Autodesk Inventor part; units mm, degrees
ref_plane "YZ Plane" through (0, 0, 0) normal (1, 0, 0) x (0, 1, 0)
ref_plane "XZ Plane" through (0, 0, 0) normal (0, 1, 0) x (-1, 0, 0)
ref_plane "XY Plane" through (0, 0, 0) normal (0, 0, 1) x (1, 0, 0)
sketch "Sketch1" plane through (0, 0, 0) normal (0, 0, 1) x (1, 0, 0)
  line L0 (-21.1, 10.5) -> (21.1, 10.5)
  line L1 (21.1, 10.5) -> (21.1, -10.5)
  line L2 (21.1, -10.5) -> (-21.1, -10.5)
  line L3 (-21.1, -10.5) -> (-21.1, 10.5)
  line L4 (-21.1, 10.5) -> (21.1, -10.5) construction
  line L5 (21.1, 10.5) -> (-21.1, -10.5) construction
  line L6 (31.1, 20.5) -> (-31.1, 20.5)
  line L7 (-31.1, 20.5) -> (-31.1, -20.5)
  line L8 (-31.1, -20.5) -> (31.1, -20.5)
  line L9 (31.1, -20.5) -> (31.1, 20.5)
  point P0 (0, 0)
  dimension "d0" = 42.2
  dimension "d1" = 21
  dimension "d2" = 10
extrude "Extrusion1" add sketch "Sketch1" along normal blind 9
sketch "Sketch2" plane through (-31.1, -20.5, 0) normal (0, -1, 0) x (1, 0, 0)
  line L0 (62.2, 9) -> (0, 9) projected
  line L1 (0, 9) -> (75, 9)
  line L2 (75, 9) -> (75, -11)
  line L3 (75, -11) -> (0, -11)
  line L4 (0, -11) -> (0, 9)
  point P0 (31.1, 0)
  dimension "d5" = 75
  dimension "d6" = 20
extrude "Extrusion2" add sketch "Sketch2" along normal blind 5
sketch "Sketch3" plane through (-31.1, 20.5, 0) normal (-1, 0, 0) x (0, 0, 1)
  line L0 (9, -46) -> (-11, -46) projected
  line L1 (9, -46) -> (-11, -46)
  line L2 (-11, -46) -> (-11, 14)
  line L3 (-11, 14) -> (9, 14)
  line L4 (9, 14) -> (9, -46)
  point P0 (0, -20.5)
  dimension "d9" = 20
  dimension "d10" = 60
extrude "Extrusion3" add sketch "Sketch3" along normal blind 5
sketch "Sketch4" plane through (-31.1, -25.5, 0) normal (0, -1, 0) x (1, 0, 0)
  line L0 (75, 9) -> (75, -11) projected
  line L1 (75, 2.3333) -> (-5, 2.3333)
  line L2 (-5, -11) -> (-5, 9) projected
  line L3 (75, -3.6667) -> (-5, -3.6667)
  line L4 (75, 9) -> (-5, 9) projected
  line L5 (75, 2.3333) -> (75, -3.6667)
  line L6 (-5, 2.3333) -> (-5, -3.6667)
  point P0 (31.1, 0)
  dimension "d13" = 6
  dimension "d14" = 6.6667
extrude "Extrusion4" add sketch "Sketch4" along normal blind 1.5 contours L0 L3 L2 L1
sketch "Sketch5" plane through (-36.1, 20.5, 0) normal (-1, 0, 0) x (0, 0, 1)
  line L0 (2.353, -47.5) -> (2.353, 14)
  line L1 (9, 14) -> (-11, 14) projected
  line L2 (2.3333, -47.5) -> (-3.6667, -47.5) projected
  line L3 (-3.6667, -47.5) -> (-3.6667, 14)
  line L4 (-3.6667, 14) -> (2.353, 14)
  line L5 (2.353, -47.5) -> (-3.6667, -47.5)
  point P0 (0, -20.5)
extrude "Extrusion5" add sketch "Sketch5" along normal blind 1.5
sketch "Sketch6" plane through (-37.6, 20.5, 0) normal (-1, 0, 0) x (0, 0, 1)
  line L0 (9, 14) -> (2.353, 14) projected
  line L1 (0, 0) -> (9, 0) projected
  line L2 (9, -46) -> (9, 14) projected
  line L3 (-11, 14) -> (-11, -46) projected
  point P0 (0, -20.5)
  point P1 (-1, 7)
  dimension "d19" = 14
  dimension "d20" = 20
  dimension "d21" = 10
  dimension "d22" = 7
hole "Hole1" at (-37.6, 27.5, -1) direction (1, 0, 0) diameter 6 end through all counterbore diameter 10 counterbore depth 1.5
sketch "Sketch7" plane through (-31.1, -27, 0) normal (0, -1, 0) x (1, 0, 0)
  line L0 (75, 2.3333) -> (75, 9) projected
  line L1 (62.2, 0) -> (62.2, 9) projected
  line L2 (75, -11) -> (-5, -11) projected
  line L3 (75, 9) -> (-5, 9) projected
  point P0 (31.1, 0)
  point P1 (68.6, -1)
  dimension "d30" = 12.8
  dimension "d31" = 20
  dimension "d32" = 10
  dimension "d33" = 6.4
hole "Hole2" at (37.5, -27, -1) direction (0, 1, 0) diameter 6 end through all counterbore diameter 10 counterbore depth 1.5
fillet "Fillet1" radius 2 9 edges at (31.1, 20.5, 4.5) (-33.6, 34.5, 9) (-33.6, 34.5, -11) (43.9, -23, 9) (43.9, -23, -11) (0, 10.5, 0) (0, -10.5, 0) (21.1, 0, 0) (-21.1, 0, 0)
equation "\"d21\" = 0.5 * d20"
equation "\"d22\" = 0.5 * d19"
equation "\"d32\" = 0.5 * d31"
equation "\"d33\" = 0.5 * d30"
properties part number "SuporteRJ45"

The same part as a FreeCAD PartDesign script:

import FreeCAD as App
import Part
import Sketcher
from FreeCAD import Vector
Q = App.Units.Quantity


def edges_at(feature, points):
    """Names of the edges that pass closest to the given points."""
    edges = feature.Shape.Edges
    near = lambda p: min(range(len(edges)), key=lambda i: edges[i].distToShape(Part.Vertex(*p))[0])
    return sorted({f"Edge{near(p) + 1}" for p in points})

doc = App.newDocument("Part")
params = doc.addObject("Spreadsheet::Sheet", "Params")
for row, (alias, value) in enumerate([
    ("sketch1_height", "21 mm"),
    ("sketch1_width", "42.2 mm"),
    ("pad1_length", "9 mm"),
    ("sketch2_width", "75 mm"),
    ("sketch2_height", "20 mm"),
    ("pad2_length", "5 mm"),
    ("sketch3_width", "60 mm"),
    ("sketch3_height", "20 mm"),
    ("pad3_length", "5 mm"),
    ("sketch4_height", "6 mm"),
    ("sketch4_width", "80 mm"),
    ("pad4_length", "1.5 mm"),
    ("sketch5_width", "61.5 mm"),
    ("pad5_length", "1.5 mm"),
    ("sketch6_diameter", "6 mm"),
    ("hole_diameter", "6 mm"),
    ("hole_cbore_diameter", "10 mm"),
    ("hole_cbore_depth", "1.5 mm"),
    ("sketch7_diameter", "6 mm"),
    ("hole2_diameter", "6 mm"),
    ("hole2_cbore_diameter", "10 mm"),
    ("hole2_cbore_depth", "1.5 mm"),
    ("fillet_radius", "2 mm"),
], start=1):
    params.set(f"A{row}", alias)
    params.set(f"B{row}", "=" + value)
    params.setAlias(f"B{row}", alias)

body = doc.addObject("PartDesign::Body", "Body")

# Sketch on XY plane
sketch1 = body.newObject("Sketcher::SketchObject", "Sketch")
sketch1.AttachmentSupport = (doc.getObject("XY_Plane"), [""])
sketch1.MapMode = "FlatFace"
sketch1.addGeometry([
    Part.LineSegment(Vector(31.1, -20.5, 0), Vector(31.1, 20.5, 0)),  # 0
    Part.LineSegment(Vector(31.1, 20.5, 0), Vector(-31.1, 20.5, 0)),  # 1
    Part.LineSegment(Vector(-31.1, 20.5, 0), Vector(-31.1, -20.5, 0)),  # 2
    Part.LineSegment(Vector(-31.1, -20.5, 0), Vector(31.1, -20.5, 0)),  # 3
    Part.LineSegment(Vector(-21.1, -10.5, 0), Vector(-21.1, 10.5, 0)),  # 4
    Part.LineSegment(Vector(-21.1, 10.5, 0), Vector(21.1, 10.5, 0)),  # 5
    Part.LineSegment(Vector(21.1, 10.5, 0), Vector(21.1, -10.5, 0)),  # 6
    Part.LineSegment(Vector(21.1, -10.5, 0), Vector(-21.1, -10.5, 0)),  # 7
], False)
sketch1.addConstraint([
    Sketcher.Constraint("Coincident", 0, 2, 1, 1),
    Sketcher.Constraint("Coincident", 1, 2, 2, 1),
    Sketcher.Constraint("Coincident", 2, 2, 3, 1),
    Sketcher.Constraint("Coincident", 3, 2, 0, 1),
    Sketcher.Constraint("Coincident", 4, 2, 5, 1),
    Sketcher.Constraint("Coincident", 5, 2, 6, 1),
    Sketcher.Constraint("Coincident", 6, 2, 7, 1),
    Sketcher.Constraint("Coincident", 7, 2, 4, 1),
    Sketcher.Constraint("Vertical", 0),
    Sketcher.Constraint("Horizontal", 1),
    Sketcher.Constraint("Vertical", 2),
    Sketcher.Constraint("Horizontal", 3),
    Sketcher.Constraint("Vertical", 4),
    Sketcher.Constraint("Horizontal", 5),
    Sketcher.Constraint("Vertical", 6),
    Sketcher.Constraint("Horizontal", 7),
    Sketcher.Constraint("Symmetric", 0, 2, 2, 2, -1, 1),
    Sketcher.Constraint("Symmetric", 4, 2, 6, 2, -1, 1),
    Sketcher.Constraint("DistanceY", 4, 1, 4, 2, Q("21 mm")),
    Sketcher.Constraint("DistanceX", 5, 1, 5, 2, Q("42.2 mm")),
    Sketcher.Constraint("DistanceX", 1, 2, 4, 2, Q("10 mm")),
    Sketcher.Constraint("DistanceY", 4, 2, 1, 2, Q("10 mm")),
])
sketch1.setExpression("Constraints[18]", "Params.sketch1_height")
sketch1.setExpression("Constraints[19]", "Params.sketch1_width")
pad1 = body.newObject("PartDesign::Pad", "Pad")
pad1.Profile = sketch1
pad1.setExpression("Length", "Params.pad1_length")

# Sketch on XZ plane
sketch2 = body.newObject("Sketcher::SketchObject", "Sketch001")
sketch2.AttachmentSupport = (doc.getObject("XZ_Plane"), [""])
sketch2.MapMode = "FlatFace"
sketch2.AttachmentOffset = App.Placement(Vector(0, 0, 20.5), App.Rotation())
sketch2.addGeometry([
    Part.LineSegment(Vector(43.9, 9, 0), Vector(-31.1, 9, 0)),
    Part.LineSegment(Vector(-31.1, 9, 0), Vector(-31.1, -11, 0)),
    Part.LineSegment(Vector(-31.1, -11, 0), Vector(43.9, -11, 0)),
    Part.LineSegment(Vector(43.9, -11, 0), Vector(43.9, 9, 0)),
], False)
sketch2.addConstraint([
    Sketcher.Constraint("Coincident", 0, 2, 1, 1),
    Sketcher.Constraint("Coincident", 1, 2, 2, 1),
    Sketcher.Constraint("Coincident", 2, 2, 3, 1),
    Sketcher.Constraint("Coincident", 3, 2, 0, 1),
    Sketcher.Constraint("Horizontal", 0),
    Sketcher.Constraint("Vertical", 1),
    Sketcher.Constraint("Horizontal", 2),
    Sketcher.Constraint("Vertical", 3),
    Sketcher.Constraint("DistanceX", 0, 2, 0, 1, Q("75 mm")),
    Sketcher.Constraint("DistanceY", 1, 2, 1, 1, Q("20 mm")),
    Sketcher.Constraint("DistanceY", -1, 1, 0, 2, Q("9 mm")),
    Sketcher.Constraint("DistanceX", 0, 2, -1, 1, Q("31.1 mm")),
])
sketch2.setExpression("Constraints[8]", "Params.sketch2_width")
sketch2.setExpression("Constraints[9]", "Params.sketch2_height")
pad2 = body.newObject("PartDesign::Pad", "Pad001")
pad2.Profile = sketch2
pad2.setExpression("Length", "Params.pad2_length")

# Sketch on YZ plane
sketch3 = body.newObject("Sketcher::SketchObject", "Sketch002")
sketch3.AttachmentSupport = (doc.getObject("YZ_Plane"), [""])
sketch3.MapMode = "FlatFace"
sketch3.AttachmentOffset = App.Placement(Vector(0, 0, -31.1), App.Rotation())
sketch3.addGeometry([
    Part.LineSegment(Vector(-25.5, -11, 0), Vector(-25.5, 9, 0)),
    Part.LineSegment(Vector(-25.5, 9, 0), Vector(34.5, 9, 0)),
    Part.LineSegment(Vector(34.5, 9, 0), Vector(34.5, -11, 0)),
    Part.LineSegment(Vector(34.5, -11, 0), Vector(-25.5, -11, 0)),
], False)
sketch3.addConstraint([
    Sketcher.Constraint("Coincident", 0, 2, 1, 1),
    Sketcher.Constraint("Coincident", 1, 2, 2, 1),
    Sketcher.Constraint("Coincident", 2, 2, 3, 1),
    Sketcher.Constraint("Coincident", 3, 2, 0, 1),
    Sketcher.Constraint("Vertical", 0),
    Sketcher.Constraint("Horizontal", 1),
    Sketcher.Constraint("Vertical", 2),
    Sketcher.Constraint("Horizontal", 3),
    Sketcher.Constraint("DistanceX", 1, 1, 1, 2, Q("60 mm")),
    Sketcher.Constraint("DistanceY", 0, 1, 0, 2, Q("20 mm")),
    Sketcher.Constraint("DistanceY", -1, 1, 0, 2, Q("9 mm")),
    Sketcher.Constraint("DistanceX", 0, 2, -1, 1, Q("25.5 mm")),
])
sketch3.setExpression("Constraints[8]", "Params.sketch3_width")
sketch3.setExpression("Constraints[9]", "Params.sketch3_height")
pad3 = body.newObject("PartDesign::Pad", "Pad002")
pad3.Profile = sketch3
pad3.setExpression("Length", "Params.pad3_length")
pad3.Reversed = True

# Sketch on XZ plane
sketch4 = body.newObject("Sketcher::SketchObject", "Sketch003")
sketch4.AttachmentSupport = (doc.getObject("XZ_Plane"), [""])
sketch4.MapMode = "FlatFace"
sketch4.AttachmentOffset = App.Placement(Vector(0, 0, 25.5), App.Rotation())
sketch4.addGeometry([
    Part.LineSegment(Vector(43.9, -3.6667, 0), Vector(43.9, 2.3333, 0)),
    Part.LineSegment(Vector(43.9, 2.3333, 0), Vector(-36.1, 2.3333, 0)),
    Part.LineSegment(Vector(-36.1, 2.3333, 0), Vector(-36.1, -3.6667, 0)),
    Part.LineSegment(Vector(-36.1, -3.6667, 0), Vector(43.9, -3.6667, 0)),
], False)
sketch4.addConstraint([
    Sketcher.Constraint("Coincident", 0, 2, 1, 1),
    Sketcher.Constraint("Coincident", 1, 2, 2, 1),
    Sketcher.Constraint("Coincident", 2, 2, 3, 1),
    Sketcher.Constraint("Coincident", 3, 2, 0, 1),
    Sketcher.Constraint("Vertical", 0),
    Sketcher.Constraint("Horizontal", 1),
    Sketcher.Constraint("Vertical", 2),
    Sketcher.Constraint("Horizontal", 3),
    Sketcher.Constraint("DistanceY", 0, 1, 0, 2, Q("6 mm")),
    Sketcher.Constraint("DistanceX", 1, 2, 1, 1, Q("80 mm")),
    Sketcher.Constraint("DistanceX", -1, 1, 0, 2, Q("43.9 mm")),
    Sketcher.Constraint("DistanceY", -1, 1, 0, 2, Q("2.3333 mm")),
])
sketch4.setExpression("Constraints[8]", "Params.sketch4_height")
sketch4.setExpression("Constraints[9]", "Params.sketch4_width")
pad4 = body.newObject("PartDesign::Pad", "Pad003")
pad4.Profile = sketch4
pad4.setExpression("Length", "Params.pad4_length")

# Sketch on YZ plane
sketch5 = body.newObject("Sketcher::SketchObject", "Sketch004")
sketch5.AttachmentSupport = (doc.getObject("YZ_Plane"), [""])
sketch5.MapMode = "FlatFace"
sketch5.AttachmentOffset = App.Placement(Vector(0, 0, -36.1), App.Rotation())
sketch5.addGeometry([
    Part.LineSegment(Vector(-27, -3.6667, 0), Vector(-27, 2.353, 0)),
    Part.LineSegment(Vector(-27, 2.353, 0), Vector(34.5, 2.353, 0)),
    Part.LineSegment(Vector(34.5, 2.353, 0), Vector(34.5, -3.6667, 0)),
    Part.LineSegment(Vector(34.5, -3.6667, 0), Vector(-27, -3.6667, 0)),
], False)
sketch5.addConstraint([
    Sketcher.Constraint("Coincident", 0, 2, 1, 1),
    Sketcher.Constraint("Coincident", 1, 2, 2, 1),
    Sketcher.Constraint("Coincident", 2, 2, 3, 1),
    Sketcher.Constraint("Coincident", 3, 2, 0, 1),
    Sketcher.Constraint("Vertical", 0),
    Sketcher.Constraint("Horizontal", 1),
    Sketcher.Constraint("Vertical", 2),
    Sketcher.Constraint("Horizontal", 3),
    Sketcher.Constraint("DistanceX", 1, 1, 1, 2, Q("61.5 mm")),
    Sketcher.Constraint("DistanceX", 0, 2, -1, 1, Q("27 mm")),
    Sketcher.Constraint("DistanceY", 0, 1, 0, 2, Q("6.0197 mm")),
    Sketcher.Constraint("DistanceY", -1, 1, 0, 2, Q("2.353 mm")),
])
sketch5.setExpression("Constraints[8]", "Params.sketch5_width")
pad5 = body.newObject("PartDesign::Pad", "Pad004")
pad5.Profile = sketch5
pad5.setExpression("Length", "Params.pad5_length")
pad5.Reversed = True

# Sketch on YZ plane
sketch6 = body.newObject("Sketcher::SketchObject", "Sketch005")
sketch6.AttachmentSupport = (doc.getObject("YZ_Plane"), [""])
sketch6.MapMode = "FlatFace"
sketch6.AttachmentOffset = App.Placement(Vector(0, 0, -37.6), App.Rotation())
sketch6.addGeometry(Part.Circle(Vector(27.5, -1, 0), Vector(0, 0, 1), 3), False)
sketch6.addConstraint([
    Sketcher.Constraint("Diameter", 0, Q("6 mm")),
    Sketcher.Constraint("DistanceY", 0, 3, -1, 1, Q("1 mm")),
    Sketcher.Constraint("DistanceX", -1, 1, 0, 3, Q("27.5 mm")),
])
sketch6.setExpression("Constraints[0]", "Params.sketch6_diameter")
doc.recompute()
hole = body.newObject("PartDesign::Hole", "Hole")
hole.Profile = sketch6
hole.ThreadType = "None"
hole.setExpression("Diameter", "Params.hole_diameter")
hole.DepthType = "ThroughAll"
hole.HoleCutType = "Counterbore"
hole.setExpression("HoleCutDiameter", "Params.hole_cbore_diameter")
hole.setExpression("HoleCutDepth", "Params.hole_cbore_depth")
hole.Reversed = True

# Sketch on XZ plane
sketch7 = body.newObject("Sketcher::SketchObject", "Sketch006")
sketch7.AttachmentSupport = (doc.getObject("XZ_Plane"), [""])
sketch7.MapMode = "FlatFace"
sketch7.AttachmentOffset = App.Placement(Vector(0, 0, 27), App.Rotation())
sketch7.addGeometry(Part.Circle(Vector(37.5, -1, 0), Vector(0, 0, 1), 3), False)
sketch7.addConstraint([
    Sketcher.Constraint("Diameter", 0, Q("6 mm")),
    Sketcher.Constraint("DistanceY", 0, 3, -1, 1, Q("1 mm")),
    Sketcher.Constraint("DistanceX", -1, 1, 0, 3, Q("37.5 mm")),
])
sketch7.setExpression("Constraints[0]", "Params.sketch7_diameter")
doc.recompute()
hole2 = body.newObject("PartDesign::Hole", "Hole001")
hole2.Profile = sketch7
hole2.ThreadType = "None"
hole2.setExpression("Diameter", "Params.hole2_diameter")
hole2.DepthType = "ThroughAll"
hole2.HoleCutType = "Counterbore"
hole2.setExpression("HoleCutDiameter", "Params.hole2_cbore_diameter")
hole2.setExpression("HoleCutDepth", "Params.hole2_cbore_depth")
doc.recompute()

fillet = body.newObject("PartDesign::Fillet", "Fillet")
fillet.Base = (hole2, edges_at(hole2, [
    (31.1, 20.5, 4.5),
    (-33.6, 34.5, 9),
    (-33.6, 34.5, -11),
    (43.9, -23, 9),
    (43.9, -23, -11),
    (0, 10.5, 0),
    (0, -10.5, 0),
    (21.1, 0, 0),
    (-21.1, 0, 0),
]))
fillet.setExpression("Radius", "Params.fillet_radius")

doc.recompute()
